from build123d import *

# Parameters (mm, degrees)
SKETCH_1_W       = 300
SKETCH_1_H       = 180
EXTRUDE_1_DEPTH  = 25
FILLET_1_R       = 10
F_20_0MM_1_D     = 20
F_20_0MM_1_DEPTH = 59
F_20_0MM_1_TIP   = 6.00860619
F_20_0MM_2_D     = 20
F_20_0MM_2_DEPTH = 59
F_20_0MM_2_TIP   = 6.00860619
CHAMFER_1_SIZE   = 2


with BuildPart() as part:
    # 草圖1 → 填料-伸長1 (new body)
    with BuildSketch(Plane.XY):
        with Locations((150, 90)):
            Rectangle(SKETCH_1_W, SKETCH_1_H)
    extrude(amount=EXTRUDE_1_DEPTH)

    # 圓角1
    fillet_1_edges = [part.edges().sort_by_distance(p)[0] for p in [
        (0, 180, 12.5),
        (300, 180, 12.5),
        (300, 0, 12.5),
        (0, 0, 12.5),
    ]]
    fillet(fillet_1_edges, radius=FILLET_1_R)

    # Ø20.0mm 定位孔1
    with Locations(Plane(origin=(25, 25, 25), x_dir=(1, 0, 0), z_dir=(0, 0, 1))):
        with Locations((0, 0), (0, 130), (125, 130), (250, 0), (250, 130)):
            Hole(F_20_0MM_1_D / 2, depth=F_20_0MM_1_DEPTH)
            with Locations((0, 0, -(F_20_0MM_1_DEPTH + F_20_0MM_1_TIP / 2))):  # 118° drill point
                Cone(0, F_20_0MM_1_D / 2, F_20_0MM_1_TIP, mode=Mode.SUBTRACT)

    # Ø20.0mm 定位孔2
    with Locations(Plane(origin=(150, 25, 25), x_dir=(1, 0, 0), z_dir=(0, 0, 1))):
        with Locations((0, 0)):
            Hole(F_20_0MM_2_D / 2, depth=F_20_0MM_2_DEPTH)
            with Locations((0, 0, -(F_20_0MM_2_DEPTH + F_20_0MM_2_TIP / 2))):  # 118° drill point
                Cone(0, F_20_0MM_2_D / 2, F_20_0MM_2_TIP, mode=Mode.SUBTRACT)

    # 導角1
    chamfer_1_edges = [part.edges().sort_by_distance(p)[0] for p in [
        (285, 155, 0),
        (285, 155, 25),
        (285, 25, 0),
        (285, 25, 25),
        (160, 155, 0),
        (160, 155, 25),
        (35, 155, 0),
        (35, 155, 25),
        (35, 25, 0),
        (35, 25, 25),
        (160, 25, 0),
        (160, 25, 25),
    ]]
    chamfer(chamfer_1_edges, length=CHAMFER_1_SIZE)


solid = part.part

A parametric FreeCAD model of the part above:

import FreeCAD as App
import Part
import Sketcher


def edges_at(feature, points):
    """Names of the edges that pass closest to the given points."""
    edges = feature.Shape.Edges
    near = lambda p: min(range(len(edges)), key=lambda i: edges[i].distToShape(Part.Vertex(*p))[0])
    return sorted({f"Edge{near(p) + 1}" for p in points})

doc = App.newDocument("Part")
body = doc.addObject("PartDesign::Body", "Body")

sketch1 = body.newObject("Sketcher::SketchObject", "Sketch")
sketch1.AttachmentSupport = (doc.getObject("XY_Plane"), [""])
sketch1.MapMode = "FlatFace"
sketch1.addGeometry(Part.LineSegment(App.Vector(0, 180, 0), App.Vector(0, 0, 0)), False)
sketch1.addGeometry(Part.LineSegment(App.Vector(0, 0, 0), App.Vector(300, 0, 0)), False)
sketch1.addGeometry(Part.LineSegment(App.Vector(300, 0, 0), App.Vector(300, 180, 0)), False)
sketch1.addGeometry(Part.LineSegment(App.Vector(300, 180, 0), App.Vector(0, 180, 0)), False)
sketch1.addConstraint(Sketcher.Constraint("Coincident", 0, 2, 1, 1))
sketch1.addConstraint(Sketcher.Constraint("Coincident", 1, 2, 2, 1))
sketch1.addConstraint(Sketcher.Constraint("Coincident", 2, 2, 3, 1))
sketch1.addConstraint(Sketcher.Constraint("Coincident", 3, 2, 0, 1))
sketch1.addConstraint(Sketcher.Constraint("Vertical", 0))
sketch1.addConstraint(Sketcher.Constraint("Horizontal", 1))
sketch1.addConstraint(Sketcher.Constraint("Vertical", 2))
sketch1.addConstraint(Sketcher.Constraint("Horizontal", 3))
sketch1.addConstraint(Sketcher.Constraint("Coincident", 0, 2, -1, 1))
sketch1.addConstraint(Sketcher.Constraint("DistanceX", 1, 1, 1, 2, 300.0))
sketch1.addConstraint(Sketcher.Constraint("DistanceY", 0, 2, 0, 1, 180.0))
pad1 = body.newObject("PartDesign::Pad", "Pad")
pad1.Profile = sketch1
pad1.Length = 25
doc.recompute()

fillet = body.newObject("PartDesign::Fillet", "Fillet")
fillet.Base = (pad1, edges_at(pad1, [
    (0, 180, 12.5),
    (300, 180, 12.5),
    (300, 0, 12.5),
    (0, 0, 12.5),
]))
fillet.Radius = 10

sketch2 = body.newObject("Sketcher::SketchObject", "Sketch001")
sketch2.AttachmentSupport = (doc.getObject("XY_Plane"), [""])
sketch2.MapMode = "FlatFace"
sketch2.AttachmentOffset = App.Placement(App.Vector(0, 0, 25), App.Rotation())
sketch2.addGeometry(Part.Circle(App.Vector(25, 25, 0), App.Vector(0, 0, 1), 10), False)
sketch2.addGeometry(Part.Circle(App.Vector(25, 155, 0), App.Vector(0, 0, 1), 10), False)
sketch2.addGeometry(Part.Circle(App.Vector(150, 155, 0), App.Vector(0, 0, 1), 10), False)
sketch2.addGeometry(Part.Circle(App.Vector(275, 25, 0), App.Vector(0, 0, 1), 10), False)
sketch2.addGeometry(Part.Circle(App.Vector(275, 155, 0), App.Vector(0, 0, 1), 10), False)
sketch2.addConstraint(Sketcher.Constraint("Equal", 0, 1))
sketch2.addConstraint(Sketcher.Constraint("Equal", 1, 2))
sketch2.addConstraint(Sketcher.Constraint("Equal", 2, 3))
sketch2.addConstraint(Sketcher.Constraint("Equal", 3, 4))
sketch2.addConstraint(Sketcher.Constraint("Horizontal", 1, 3, 2, 3))
sketch2.addConstraint(Sketcher.Constraint("Horizontal", 0, 3, 3, 3))
sketch2.addConstraint(Sketcher.Constraint("Horizontal", 2, 3, 4, 3))
sketch2.addConstraint(Sketcher.Constraint("Vertical", 0, 3, 1, 3))
sketch2.addConstraint(Sketcher.Constraint("Vertical", 3, 3, 4, 3))
sketch2.addConstraint(Sketcher.Constraint("Diameter", 0, 20.0))
sketch2.addConstraint(Sketcher.Constraint("DistanceX", -1, 1, 0, 3, 25.0))
sketch2.addConstraint(Sketcher.Constraint("DistanceY", -1, 1, 0, 3, 25.0))
sketch2.addConstraint(Sketcher.Constraint("DistanceY", -1, 1, 1, 3, 155.0))
sketch2.addConstraint(Sketcher.Constraint("DistanceX", -1, 1, 2, 3, 150.0))
sketch2.addConstraint(Sketcher.Constraint("DistanceX", -1, 1, 3, 3, 275.0))
doc.recompute()
hole = body.newObject("PartDesign::Hole", "Hole")
hole.Profile = sketch2
hole.ThreadType = "None"
hole.Diameter = 20
hole.DepthType = "Dimension"
hole.Depth = 59
hole.DrillPoint = "Angled"
hole.DrillPointAngle = 118

sketch3 = body.newObject("Sketcher::SketchObject", "Sketch002")
sketch3.AttachmentSupport = (doc.getObject("XY_Plane"), [""])
sketch3.MapMode = "FlatFace"
sketch3.AttachmentOffset = App.Placement(App.Vector(0, 0, 25), App.Rotation())
sketch3.addGeometry(Part.Circle(App.Vector(150, 25, 0), App.Vector(0, 0, 1), 10), False)
sketch3.addConstraint(Sketcher.Constraint("Diameter", 0, 20.0))
sketch3.addConstraint(Sketcher.Constraint("DistanceX", -1, 1, 0, 3, 150.0))
sketch3.addConstraint(Sketcher.Constraint("DistanceY", -1, 1, 0, 3, 25.0))
doc.recompute()
hole2 = body.newObject("PartDesign::Hole", "Hole001")
hole2.Profile = sketch3
hole2.ThreadType = "None"
hole2.Diameter = 20
hole2.DepthType = "Dimension"
hole2.Depth = 59
hole2.DrillPoint = "Angled"
hole2.DrillPointAngle = 118
doc.recompute()

chamfer = body.newObject("PartDesign::Chamfer", "Chamfer")
chamfer.Base = (hole2, edges_at(hole2, [
    (285, 155, 0),
    (285, 155, 25),
    (285, 25, 0),
    (285, 25, 25),
    (160, 155, 0),
    (160, 155, 25),
    (35, 155, 0),
    (35, 155, 25),
    (35, 25, 0),
    (35, 25, 25),
    (160, 25, 0),
    (160, 25, 25),
]))
chamfer.Size = 2

doc.recompute()
